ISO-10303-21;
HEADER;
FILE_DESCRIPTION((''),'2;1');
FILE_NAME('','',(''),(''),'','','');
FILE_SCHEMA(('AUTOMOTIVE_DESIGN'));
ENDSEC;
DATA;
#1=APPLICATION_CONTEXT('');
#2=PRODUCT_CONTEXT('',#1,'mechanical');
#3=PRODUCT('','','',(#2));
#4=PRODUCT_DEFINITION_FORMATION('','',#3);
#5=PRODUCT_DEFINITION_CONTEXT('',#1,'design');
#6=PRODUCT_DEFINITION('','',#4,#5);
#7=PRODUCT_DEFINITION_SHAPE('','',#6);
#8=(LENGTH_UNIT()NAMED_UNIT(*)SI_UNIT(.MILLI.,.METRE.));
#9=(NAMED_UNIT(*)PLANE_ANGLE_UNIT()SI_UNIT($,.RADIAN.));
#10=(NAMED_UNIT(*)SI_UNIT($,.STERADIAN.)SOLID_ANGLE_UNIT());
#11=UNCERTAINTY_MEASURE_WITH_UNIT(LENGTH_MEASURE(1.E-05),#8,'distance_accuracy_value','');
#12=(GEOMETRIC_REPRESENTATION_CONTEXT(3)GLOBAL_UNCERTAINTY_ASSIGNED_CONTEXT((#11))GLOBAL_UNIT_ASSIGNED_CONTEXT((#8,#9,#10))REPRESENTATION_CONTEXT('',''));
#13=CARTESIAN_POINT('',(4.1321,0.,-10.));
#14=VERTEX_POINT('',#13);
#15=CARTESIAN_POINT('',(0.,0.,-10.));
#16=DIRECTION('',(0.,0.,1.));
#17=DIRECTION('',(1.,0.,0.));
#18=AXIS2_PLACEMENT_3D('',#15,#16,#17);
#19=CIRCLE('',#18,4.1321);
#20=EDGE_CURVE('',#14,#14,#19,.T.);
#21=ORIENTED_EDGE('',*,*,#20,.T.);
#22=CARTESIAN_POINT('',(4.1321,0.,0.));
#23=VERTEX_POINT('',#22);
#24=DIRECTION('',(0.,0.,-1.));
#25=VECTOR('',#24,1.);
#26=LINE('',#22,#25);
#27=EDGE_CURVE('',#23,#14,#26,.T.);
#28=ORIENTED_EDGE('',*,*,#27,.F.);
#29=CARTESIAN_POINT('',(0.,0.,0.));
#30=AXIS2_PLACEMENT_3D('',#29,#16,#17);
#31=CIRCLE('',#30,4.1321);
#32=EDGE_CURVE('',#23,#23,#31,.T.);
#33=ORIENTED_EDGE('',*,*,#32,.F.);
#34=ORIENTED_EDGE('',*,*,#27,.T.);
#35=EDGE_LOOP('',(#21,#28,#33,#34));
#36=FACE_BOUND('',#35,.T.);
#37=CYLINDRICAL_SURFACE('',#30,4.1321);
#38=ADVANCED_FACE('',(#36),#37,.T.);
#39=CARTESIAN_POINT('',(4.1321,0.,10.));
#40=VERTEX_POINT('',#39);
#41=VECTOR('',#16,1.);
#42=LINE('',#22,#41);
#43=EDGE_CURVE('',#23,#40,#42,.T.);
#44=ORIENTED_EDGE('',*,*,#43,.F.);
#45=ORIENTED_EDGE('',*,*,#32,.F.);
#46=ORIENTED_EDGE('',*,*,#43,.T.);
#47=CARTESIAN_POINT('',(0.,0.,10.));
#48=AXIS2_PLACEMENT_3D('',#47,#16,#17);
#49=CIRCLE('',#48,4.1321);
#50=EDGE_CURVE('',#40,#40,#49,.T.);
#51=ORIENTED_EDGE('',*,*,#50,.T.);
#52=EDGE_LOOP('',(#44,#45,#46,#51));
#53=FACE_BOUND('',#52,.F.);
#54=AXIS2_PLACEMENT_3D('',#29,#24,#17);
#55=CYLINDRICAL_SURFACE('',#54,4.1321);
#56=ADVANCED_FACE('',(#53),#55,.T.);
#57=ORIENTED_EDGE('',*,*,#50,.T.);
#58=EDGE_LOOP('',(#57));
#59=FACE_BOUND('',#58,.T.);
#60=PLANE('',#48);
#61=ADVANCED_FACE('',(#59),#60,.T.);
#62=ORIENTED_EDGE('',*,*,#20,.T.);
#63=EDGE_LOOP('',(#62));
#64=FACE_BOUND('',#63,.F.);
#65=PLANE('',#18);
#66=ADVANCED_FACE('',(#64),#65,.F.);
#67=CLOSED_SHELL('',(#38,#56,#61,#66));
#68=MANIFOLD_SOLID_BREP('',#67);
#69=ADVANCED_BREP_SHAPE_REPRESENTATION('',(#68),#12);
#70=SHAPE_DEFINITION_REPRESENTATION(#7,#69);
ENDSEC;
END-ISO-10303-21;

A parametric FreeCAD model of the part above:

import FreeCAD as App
import Part
import Sketcher
from FreeCAD import Vector
Q = App.Units.Quantity

doc = App.newDocument("Part")
params = doc.addObject("Spreadsheet::Sheet", "Params")
for row, (alias, value) in enumerate([
    ("pad1_length", "20 mm"),
], start=1):
    params.set(f"A{row}", alias)
    params.set(f"B{row}", "=" + value)
    params.setAlias(f"B{row}", alias)

body = doc.addObject("PartDesign::Body", "Body")

# Sketch on XY plane
sketch1 = body.newObject("Sketcher::SketchObject", "Sketch")
sketch1.AttachmentSupport = (doc.getObject("XY_Plane"), [""])
sketch1.MapMode = "FlatFace"
sketch1.addGeometry(Part.Circle(Vector(0, 0, 0), Vector(0, 0, 1), 4.1), False)
sketch1.addConstraint(Sketcher.Constraint("Coincident", 0, 3, -1, 1))
sketch1.addConstraint(Sketcher.Constraint("Diameter", 0, Q("8.2642 mm")))
pad1 = body.newObject("PartDesign::Pad", "Pad")
pad1.Profile = sketch1
pad1.setExpression("Length", "Params.pad1_length")
pad1.Midplane = True

doc.recompute()
